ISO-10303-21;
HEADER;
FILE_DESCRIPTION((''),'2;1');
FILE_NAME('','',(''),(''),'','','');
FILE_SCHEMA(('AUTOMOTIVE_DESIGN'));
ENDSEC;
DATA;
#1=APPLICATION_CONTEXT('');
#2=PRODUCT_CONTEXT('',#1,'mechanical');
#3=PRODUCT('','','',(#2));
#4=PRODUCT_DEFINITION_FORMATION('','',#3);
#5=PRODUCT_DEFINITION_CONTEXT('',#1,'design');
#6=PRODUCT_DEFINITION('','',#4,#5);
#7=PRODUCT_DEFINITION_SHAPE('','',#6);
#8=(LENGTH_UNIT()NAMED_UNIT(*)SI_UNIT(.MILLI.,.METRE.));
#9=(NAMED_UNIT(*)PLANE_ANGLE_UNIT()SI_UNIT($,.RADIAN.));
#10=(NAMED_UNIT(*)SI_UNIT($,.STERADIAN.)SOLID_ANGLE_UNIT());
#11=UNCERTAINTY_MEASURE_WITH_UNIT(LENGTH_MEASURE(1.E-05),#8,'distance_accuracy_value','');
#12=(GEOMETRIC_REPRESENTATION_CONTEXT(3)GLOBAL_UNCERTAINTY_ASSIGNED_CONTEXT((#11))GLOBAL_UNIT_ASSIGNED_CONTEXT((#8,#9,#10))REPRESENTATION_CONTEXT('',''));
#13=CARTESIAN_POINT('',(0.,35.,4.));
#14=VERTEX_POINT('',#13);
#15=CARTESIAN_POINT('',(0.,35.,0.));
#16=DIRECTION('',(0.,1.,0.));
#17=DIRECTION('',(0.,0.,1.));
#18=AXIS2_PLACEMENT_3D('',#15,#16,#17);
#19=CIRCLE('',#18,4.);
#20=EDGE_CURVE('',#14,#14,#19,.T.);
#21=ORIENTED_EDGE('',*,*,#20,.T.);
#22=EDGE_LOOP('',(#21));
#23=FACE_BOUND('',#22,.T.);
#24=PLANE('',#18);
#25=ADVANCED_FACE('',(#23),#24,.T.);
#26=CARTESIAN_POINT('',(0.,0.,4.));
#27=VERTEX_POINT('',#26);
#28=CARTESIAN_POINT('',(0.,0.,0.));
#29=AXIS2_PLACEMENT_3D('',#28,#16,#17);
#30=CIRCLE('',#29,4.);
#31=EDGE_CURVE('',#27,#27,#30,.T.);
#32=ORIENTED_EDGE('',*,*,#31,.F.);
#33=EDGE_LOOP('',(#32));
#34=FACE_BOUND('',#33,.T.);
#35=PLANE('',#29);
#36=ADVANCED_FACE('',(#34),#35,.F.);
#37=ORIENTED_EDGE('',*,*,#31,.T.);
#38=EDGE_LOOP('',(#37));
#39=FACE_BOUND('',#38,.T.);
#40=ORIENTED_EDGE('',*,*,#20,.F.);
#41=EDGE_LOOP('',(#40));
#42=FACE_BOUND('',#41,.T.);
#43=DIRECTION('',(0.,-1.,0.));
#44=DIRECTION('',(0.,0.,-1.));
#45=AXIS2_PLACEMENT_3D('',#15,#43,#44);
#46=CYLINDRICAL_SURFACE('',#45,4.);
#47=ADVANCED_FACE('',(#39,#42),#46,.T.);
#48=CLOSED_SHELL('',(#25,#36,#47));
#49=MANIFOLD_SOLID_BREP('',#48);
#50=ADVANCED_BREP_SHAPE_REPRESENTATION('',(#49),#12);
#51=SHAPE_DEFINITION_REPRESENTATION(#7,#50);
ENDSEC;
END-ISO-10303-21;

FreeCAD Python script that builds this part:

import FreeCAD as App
import Part
import Sketcher

V = App.Vector
Q = App.Units.Quantity

doc = App.newDocument("Part")
params = doc.addObject("Spreadsheet::Sheet", "Params")
for row, (alias, value) in enumerate([
    ("sketch1_diameter", "8 mm"),
    ("pad1_length", "35 mm"),
], start=1):
    params.set(f"A{row}", alias)
    params.set(f"B{row}", "=" + value)
    params.setAlias(f"B{row}", alias)

body = doc.addObject("PartDesign::Body", "Body")

# Sketch on XZ plane
sketch1 = body.newObject("Sketcher::SketchObject", "Sketch")
sketch1.AttachmentSupport = (doc.getObject("XZ_Plane"), [""])
sketch1.MapMode = "FlatFace"
sketch1.addGeometry(Part.Circle(V(0, 0, 0), V(0, 0, 1), 4), False)
sketch1.addConstraint(Sketcher.Constraint("Coincident", 0, 3, -1, 1))
sketch1.addConstraint(Sketcher.Constraint("Diameter", 0, Q("8 mm")))
sketch1.setExpression("Constraints[1]", "Params.sketch1_diameter")
pad1 = body.newObject("PartDesign::Pad", "Pad")
pad1.Profile = sketch1
pad1.setExpression("Length", "Params.pad1_length")
pad1.Reversed = True

doc.recompute()
